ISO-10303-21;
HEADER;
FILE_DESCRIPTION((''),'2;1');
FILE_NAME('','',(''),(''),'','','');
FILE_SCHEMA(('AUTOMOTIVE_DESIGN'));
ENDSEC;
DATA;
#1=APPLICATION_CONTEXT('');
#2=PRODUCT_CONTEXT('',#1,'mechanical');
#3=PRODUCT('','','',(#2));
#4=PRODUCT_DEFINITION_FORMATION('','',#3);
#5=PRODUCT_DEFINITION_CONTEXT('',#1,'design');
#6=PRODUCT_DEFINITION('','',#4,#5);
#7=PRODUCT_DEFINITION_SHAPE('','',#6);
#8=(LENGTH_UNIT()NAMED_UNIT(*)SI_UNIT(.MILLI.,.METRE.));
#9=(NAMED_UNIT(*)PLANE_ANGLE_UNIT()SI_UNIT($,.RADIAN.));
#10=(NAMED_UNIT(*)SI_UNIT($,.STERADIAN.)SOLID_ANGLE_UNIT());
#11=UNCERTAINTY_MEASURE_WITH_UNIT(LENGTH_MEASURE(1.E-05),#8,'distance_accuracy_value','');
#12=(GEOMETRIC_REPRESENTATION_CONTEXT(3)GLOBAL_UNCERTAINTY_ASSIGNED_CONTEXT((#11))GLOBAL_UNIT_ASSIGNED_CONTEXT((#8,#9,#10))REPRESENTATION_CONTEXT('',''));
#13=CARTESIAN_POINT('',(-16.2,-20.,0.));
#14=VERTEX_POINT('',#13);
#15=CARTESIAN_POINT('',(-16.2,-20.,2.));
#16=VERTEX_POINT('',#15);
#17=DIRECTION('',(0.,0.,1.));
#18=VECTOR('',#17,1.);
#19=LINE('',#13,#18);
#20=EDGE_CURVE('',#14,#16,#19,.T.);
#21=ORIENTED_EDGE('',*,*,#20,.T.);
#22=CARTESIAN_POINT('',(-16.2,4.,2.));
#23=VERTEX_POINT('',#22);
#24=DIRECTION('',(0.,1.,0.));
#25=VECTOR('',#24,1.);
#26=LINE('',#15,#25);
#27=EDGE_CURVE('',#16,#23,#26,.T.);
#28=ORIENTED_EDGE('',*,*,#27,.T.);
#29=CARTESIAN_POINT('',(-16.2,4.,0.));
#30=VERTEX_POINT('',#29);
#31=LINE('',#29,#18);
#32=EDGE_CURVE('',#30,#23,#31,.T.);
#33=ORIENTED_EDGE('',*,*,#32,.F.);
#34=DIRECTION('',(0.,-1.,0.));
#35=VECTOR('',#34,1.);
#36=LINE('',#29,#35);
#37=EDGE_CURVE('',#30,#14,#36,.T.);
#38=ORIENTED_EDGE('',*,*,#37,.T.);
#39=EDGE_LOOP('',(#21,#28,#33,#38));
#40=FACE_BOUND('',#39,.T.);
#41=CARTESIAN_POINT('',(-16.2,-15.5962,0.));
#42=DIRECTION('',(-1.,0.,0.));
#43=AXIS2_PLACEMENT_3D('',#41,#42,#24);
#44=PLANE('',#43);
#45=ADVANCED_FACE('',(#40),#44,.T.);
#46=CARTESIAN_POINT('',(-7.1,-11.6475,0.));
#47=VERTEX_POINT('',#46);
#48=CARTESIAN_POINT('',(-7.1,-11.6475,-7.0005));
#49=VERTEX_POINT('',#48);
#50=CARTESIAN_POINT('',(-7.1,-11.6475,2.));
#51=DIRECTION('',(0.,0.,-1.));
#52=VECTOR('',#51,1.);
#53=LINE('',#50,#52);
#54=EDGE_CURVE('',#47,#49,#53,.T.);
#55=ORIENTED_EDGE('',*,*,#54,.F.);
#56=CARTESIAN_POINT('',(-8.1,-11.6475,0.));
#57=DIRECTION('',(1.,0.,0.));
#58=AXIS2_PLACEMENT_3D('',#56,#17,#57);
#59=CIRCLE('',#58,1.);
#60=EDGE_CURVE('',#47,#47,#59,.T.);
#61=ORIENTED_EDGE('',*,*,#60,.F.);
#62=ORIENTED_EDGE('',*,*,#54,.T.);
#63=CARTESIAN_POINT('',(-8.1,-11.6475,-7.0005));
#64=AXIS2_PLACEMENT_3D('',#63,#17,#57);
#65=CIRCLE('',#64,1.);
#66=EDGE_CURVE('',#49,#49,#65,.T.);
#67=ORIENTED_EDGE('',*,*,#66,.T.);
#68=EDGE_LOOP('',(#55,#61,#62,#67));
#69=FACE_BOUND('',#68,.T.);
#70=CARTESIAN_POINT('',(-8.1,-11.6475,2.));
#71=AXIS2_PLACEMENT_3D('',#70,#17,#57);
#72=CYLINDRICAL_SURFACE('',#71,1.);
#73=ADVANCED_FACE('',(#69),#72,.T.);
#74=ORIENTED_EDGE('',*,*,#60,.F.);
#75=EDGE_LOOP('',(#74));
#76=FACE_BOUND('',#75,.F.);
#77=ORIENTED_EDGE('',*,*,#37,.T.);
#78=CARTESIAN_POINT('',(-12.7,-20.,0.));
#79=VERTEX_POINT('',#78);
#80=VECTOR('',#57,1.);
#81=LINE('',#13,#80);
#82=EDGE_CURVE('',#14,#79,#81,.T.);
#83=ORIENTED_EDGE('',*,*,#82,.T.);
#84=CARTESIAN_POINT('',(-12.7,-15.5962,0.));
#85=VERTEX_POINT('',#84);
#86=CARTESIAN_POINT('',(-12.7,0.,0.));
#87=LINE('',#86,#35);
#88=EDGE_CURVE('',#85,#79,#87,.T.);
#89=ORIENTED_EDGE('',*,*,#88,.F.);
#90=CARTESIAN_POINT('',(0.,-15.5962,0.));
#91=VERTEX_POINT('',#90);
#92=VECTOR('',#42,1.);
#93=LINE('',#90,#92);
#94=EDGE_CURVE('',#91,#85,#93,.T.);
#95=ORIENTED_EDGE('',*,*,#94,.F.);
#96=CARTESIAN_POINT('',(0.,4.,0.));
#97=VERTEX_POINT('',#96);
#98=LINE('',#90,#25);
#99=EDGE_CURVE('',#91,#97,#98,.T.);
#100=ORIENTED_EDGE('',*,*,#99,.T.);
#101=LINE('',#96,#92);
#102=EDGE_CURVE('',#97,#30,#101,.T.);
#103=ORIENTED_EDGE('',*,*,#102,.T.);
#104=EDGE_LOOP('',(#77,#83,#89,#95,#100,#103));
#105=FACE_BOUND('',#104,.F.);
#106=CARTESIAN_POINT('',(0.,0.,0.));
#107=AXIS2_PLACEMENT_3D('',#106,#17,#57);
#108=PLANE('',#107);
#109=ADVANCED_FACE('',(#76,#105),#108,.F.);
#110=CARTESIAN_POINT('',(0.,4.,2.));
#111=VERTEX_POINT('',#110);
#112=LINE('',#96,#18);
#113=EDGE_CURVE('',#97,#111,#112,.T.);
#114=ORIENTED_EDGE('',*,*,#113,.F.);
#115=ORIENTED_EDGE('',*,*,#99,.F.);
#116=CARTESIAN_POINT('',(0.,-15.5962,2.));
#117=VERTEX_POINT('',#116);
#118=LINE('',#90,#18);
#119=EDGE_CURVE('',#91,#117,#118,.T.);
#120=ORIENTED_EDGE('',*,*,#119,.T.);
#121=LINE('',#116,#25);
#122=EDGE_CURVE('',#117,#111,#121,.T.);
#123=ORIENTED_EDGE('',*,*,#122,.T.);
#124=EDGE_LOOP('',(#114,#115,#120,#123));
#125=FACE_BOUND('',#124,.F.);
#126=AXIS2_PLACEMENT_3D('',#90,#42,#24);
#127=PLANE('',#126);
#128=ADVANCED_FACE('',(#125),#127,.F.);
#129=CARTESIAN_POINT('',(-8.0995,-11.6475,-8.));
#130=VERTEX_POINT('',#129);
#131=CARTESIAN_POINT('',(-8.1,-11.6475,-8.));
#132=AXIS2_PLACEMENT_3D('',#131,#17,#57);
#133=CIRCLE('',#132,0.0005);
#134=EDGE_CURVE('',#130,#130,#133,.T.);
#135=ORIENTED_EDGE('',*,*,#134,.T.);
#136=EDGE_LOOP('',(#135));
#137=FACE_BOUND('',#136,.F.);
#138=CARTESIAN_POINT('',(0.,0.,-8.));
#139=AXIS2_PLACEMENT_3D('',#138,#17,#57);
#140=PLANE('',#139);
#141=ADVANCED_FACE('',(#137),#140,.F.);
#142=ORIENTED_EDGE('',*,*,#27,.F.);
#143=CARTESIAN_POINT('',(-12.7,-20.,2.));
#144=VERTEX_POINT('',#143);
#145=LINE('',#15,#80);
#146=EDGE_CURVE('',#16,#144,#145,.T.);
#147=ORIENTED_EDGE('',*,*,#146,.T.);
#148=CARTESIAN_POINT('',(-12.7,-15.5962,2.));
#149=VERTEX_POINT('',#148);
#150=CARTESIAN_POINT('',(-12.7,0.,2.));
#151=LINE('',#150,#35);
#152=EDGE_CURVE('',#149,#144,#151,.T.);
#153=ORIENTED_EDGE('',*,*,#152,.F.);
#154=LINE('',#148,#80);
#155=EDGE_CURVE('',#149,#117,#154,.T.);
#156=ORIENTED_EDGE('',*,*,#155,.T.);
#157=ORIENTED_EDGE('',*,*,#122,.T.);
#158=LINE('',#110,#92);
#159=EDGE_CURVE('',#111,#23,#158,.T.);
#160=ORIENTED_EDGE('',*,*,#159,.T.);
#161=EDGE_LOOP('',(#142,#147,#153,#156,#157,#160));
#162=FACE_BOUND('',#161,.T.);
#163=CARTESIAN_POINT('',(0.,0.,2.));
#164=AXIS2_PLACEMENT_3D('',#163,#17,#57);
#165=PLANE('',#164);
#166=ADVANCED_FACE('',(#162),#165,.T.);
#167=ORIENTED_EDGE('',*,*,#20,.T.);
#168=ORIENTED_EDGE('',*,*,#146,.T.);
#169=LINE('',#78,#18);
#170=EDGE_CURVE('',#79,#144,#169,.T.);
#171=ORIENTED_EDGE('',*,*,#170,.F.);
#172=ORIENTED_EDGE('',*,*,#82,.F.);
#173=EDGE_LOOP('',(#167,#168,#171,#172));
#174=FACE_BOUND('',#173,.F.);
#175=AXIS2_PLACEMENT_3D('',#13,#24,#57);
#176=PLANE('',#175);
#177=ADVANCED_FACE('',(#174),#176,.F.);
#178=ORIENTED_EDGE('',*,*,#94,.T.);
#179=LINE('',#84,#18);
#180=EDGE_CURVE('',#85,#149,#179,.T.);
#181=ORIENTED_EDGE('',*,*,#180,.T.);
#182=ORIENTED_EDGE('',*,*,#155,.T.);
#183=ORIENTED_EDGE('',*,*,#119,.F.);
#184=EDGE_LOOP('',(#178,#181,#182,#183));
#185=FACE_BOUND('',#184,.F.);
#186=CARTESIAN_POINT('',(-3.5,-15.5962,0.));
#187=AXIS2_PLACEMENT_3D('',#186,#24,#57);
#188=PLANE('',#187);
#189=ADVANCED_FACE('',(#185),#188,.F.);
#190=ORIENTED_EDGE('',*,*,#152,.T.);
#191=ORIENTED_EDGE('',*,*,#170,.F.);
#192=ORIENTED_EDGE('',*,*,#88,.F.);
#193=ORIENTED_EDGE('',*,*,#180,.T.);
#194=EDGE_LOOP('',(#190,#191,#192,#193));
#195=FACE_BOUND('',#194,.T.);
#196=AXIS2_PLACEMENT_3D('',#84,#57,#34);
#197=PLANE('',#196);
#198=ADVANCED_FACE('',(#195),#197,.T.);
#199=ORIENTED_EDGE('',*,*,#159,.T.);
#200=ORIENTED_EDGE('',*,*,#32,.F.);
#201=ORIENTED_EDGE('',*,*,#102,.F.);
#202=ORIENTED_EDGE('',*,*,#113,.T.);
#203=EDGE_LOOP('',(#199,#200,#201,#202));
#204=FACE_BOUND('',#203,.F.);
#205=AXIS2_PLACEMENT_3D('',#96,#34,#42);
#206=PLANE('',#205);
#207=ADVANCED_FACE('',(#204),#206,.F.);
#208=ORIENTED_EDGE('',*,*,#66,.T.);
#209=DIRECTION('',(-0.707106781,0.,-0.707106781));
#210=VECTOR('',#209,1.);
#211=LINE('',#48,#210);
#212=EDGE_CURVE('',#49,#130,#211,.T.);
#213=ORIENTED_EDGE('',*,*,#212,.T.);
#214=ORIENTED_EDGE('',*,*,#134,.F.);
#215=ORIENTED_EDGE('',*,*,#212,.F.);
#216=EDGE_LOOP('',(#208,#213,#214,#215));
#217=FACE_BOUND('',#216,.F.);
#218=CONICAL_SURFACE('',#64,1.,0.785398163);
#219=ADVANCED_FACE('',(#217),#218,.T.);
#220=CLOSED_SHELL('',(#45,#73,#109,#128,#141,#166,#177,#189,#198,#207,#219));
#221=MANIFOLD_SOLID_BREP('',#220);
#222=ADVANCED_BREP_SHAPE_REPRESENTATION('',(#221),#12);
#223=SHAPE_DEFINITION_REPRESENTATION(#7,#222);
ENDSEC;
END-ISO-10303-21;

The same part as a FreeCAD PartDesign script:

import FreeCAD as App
import Part
import Sketcher
Q = App.Units.Quantity


def edges_at(feature, points):
    """Names of the edges that pass closest to the given points."""
    edges = feature.Shape.Edges
    near = lambda p: min(range(len(edges)), key=lambda i: edges[i].distToShape(Part.Vertex(*p))[0])
    return sorted({f"Edge{near(p) + 1}" for p in points})

doc = App.newDocument("Part")
body = doc.addObject("PartDesign::Body", "Body")

# Sketch on XY plane
sketch1 = doc.addObject("Sketcher::SketchObject", "Sketch")
body.addObject(sketch1)
sketch1.AttachmentSupport = (doc.XY_Plane, [""])
sketch1.MapMode = "FlatFace"
sketch1.addGeometry(Part.LineSegment(App.Vector(-16.2, 4, 0), App.Vector(-16.2, -20, 0)), False)
sketch1.addGeometry(Part.LineSegment(App.Vector(-16.2, -20, 0), App.Vector(-12.7, -20, 0)), False)
sketch1.addGeometry(Part.LineSegment(App.Vector(-12.7, -20, 0), App.Vector(-12.7, -15.5962, 0)), False)
sketch1.addGeometry(Part.LineSegment(App.Vector(-12.7, -15.5962, 0), App.Vector(0, -15.5962, 0)), False)
sketch1.addGeometry(Part.LineSegment(App.Vector(0, -15.5962, 0), App.Vector(0, 4, 0)), False)
sketch1.addGeometry(Part.LineSegment(App.Vector(0, 4, 0), App.Vector(-16.2, 4, 0)), False)
sketch1.addConstraint(Sketcher.Constraint("Coincident", 0, 2, 1, 1))
sketch1.addConstraint(Sketcher.Constraint("Coincident", 1, 2, 2, 1))
sketch1.addConstraint(Sketcher.Constraint("Coincident", 2, 2, 3, 1))
sketch1.addConstraint(Sketcher.Constraint("Coincident", 3, 2, 4, 1))
sketch1.addConstraint(Sketcher.Constraint("Coincident", 4, 2, 5, 1))
sketch1.addConstraint(Sketcher.Constraint("Coincident", 5, 2, 0, 1))
sketch1.addConstraint(Sketcher.Constraint("Vertical", 0))
sketch1.addConstraint(Sketcher.Constraint("Horizontal", 1))
sketch1.addConstraint(Sketcher.Constraint("Vertical", 2))
sketch1.addConstraint(Sketcher.Constraint("Horizontal", 3))
sketch1.addConstraint(Sketcher.Constraint("Vertical", 4))
sketch1.addConstraint(Sketcher.Constraint("Horizontal", 5))
sketch1.addConstraint(Sketcher.Constraint("PointOnObject", 3, 2, -2))
sketch1.addConstraint(Sketcher.Constraint("DistanceY", 0, 2, 0, 1, Q("24 mm")))
sketch1.addConstraint(Sketcher.Constraint("DistanceX", 1, 1, 1, 2, Q("3.5 mm")))
sketch1.addConstraint(Sketcher.Constraint("DistanceX", 3, 1, 3, 2, Q("12.7 mm")))
sketch1.addConstraint(Sketcher.Constraint("DistanceY", 0, 2, -1, 1, Q("20 mm")))
sketch1.addConstraint(Sketcher.Constraint("DistanceY", 2, 1, 2, 2, Q("4.4038 mm")))
pad1 = doc.addObject("PartDesign::Pad", "Pad")
body.addObject(pad1)
pad1.Profile = sketch1
pad1.Length = 2

# Sketch on XY plane
sketch2 = doc.addObject("Sketcher::SketchObject", "Sketch001")
body.addObject(sketch2)
sketch2.AttachmentSupport = (doc.XY_Plane, [""])
sketch2.MapMode = "FlatFace"
sketch2.AttachmentOffset = App.Placement(App.Vector(0, 0, 2), App.Rotation())
sketch2.addGeometry(Part.Circle(App.Vector(-8.1, -11.6475, 0), App.Vector(0, 0, 1), 1), False)
sketch2.addConstraint(Sketcher.Constraint("Diameter", 0, Q("2 mm")))
sketch2.addConstraint(Sketcher.Constraint("DistanceX", 0, 3, -1, 1, Q("8.1 mm")))
sketch2.addConstraint(Sketcher.Constraint("DistanceY", 0, 3, -1, 1, Q("11.6475 mm")))
pad2 = doc.addObject("PartDesign::Pad", "Pad001")
body.addObject(pad2)
pad2.Profile = sketch2
pad2.Length = 10
pad2.Reversed = True
doc.recompute()

chamfer = doc.addObject("PartDesign::Chamfer", "Chamfer")
body.addObject(chamfer)
chamfer.Base = (pad2, edges_at(pad2, [(-9.1, -11.648, -8)]))
chamfer.Size = 1

doc.recompute()
